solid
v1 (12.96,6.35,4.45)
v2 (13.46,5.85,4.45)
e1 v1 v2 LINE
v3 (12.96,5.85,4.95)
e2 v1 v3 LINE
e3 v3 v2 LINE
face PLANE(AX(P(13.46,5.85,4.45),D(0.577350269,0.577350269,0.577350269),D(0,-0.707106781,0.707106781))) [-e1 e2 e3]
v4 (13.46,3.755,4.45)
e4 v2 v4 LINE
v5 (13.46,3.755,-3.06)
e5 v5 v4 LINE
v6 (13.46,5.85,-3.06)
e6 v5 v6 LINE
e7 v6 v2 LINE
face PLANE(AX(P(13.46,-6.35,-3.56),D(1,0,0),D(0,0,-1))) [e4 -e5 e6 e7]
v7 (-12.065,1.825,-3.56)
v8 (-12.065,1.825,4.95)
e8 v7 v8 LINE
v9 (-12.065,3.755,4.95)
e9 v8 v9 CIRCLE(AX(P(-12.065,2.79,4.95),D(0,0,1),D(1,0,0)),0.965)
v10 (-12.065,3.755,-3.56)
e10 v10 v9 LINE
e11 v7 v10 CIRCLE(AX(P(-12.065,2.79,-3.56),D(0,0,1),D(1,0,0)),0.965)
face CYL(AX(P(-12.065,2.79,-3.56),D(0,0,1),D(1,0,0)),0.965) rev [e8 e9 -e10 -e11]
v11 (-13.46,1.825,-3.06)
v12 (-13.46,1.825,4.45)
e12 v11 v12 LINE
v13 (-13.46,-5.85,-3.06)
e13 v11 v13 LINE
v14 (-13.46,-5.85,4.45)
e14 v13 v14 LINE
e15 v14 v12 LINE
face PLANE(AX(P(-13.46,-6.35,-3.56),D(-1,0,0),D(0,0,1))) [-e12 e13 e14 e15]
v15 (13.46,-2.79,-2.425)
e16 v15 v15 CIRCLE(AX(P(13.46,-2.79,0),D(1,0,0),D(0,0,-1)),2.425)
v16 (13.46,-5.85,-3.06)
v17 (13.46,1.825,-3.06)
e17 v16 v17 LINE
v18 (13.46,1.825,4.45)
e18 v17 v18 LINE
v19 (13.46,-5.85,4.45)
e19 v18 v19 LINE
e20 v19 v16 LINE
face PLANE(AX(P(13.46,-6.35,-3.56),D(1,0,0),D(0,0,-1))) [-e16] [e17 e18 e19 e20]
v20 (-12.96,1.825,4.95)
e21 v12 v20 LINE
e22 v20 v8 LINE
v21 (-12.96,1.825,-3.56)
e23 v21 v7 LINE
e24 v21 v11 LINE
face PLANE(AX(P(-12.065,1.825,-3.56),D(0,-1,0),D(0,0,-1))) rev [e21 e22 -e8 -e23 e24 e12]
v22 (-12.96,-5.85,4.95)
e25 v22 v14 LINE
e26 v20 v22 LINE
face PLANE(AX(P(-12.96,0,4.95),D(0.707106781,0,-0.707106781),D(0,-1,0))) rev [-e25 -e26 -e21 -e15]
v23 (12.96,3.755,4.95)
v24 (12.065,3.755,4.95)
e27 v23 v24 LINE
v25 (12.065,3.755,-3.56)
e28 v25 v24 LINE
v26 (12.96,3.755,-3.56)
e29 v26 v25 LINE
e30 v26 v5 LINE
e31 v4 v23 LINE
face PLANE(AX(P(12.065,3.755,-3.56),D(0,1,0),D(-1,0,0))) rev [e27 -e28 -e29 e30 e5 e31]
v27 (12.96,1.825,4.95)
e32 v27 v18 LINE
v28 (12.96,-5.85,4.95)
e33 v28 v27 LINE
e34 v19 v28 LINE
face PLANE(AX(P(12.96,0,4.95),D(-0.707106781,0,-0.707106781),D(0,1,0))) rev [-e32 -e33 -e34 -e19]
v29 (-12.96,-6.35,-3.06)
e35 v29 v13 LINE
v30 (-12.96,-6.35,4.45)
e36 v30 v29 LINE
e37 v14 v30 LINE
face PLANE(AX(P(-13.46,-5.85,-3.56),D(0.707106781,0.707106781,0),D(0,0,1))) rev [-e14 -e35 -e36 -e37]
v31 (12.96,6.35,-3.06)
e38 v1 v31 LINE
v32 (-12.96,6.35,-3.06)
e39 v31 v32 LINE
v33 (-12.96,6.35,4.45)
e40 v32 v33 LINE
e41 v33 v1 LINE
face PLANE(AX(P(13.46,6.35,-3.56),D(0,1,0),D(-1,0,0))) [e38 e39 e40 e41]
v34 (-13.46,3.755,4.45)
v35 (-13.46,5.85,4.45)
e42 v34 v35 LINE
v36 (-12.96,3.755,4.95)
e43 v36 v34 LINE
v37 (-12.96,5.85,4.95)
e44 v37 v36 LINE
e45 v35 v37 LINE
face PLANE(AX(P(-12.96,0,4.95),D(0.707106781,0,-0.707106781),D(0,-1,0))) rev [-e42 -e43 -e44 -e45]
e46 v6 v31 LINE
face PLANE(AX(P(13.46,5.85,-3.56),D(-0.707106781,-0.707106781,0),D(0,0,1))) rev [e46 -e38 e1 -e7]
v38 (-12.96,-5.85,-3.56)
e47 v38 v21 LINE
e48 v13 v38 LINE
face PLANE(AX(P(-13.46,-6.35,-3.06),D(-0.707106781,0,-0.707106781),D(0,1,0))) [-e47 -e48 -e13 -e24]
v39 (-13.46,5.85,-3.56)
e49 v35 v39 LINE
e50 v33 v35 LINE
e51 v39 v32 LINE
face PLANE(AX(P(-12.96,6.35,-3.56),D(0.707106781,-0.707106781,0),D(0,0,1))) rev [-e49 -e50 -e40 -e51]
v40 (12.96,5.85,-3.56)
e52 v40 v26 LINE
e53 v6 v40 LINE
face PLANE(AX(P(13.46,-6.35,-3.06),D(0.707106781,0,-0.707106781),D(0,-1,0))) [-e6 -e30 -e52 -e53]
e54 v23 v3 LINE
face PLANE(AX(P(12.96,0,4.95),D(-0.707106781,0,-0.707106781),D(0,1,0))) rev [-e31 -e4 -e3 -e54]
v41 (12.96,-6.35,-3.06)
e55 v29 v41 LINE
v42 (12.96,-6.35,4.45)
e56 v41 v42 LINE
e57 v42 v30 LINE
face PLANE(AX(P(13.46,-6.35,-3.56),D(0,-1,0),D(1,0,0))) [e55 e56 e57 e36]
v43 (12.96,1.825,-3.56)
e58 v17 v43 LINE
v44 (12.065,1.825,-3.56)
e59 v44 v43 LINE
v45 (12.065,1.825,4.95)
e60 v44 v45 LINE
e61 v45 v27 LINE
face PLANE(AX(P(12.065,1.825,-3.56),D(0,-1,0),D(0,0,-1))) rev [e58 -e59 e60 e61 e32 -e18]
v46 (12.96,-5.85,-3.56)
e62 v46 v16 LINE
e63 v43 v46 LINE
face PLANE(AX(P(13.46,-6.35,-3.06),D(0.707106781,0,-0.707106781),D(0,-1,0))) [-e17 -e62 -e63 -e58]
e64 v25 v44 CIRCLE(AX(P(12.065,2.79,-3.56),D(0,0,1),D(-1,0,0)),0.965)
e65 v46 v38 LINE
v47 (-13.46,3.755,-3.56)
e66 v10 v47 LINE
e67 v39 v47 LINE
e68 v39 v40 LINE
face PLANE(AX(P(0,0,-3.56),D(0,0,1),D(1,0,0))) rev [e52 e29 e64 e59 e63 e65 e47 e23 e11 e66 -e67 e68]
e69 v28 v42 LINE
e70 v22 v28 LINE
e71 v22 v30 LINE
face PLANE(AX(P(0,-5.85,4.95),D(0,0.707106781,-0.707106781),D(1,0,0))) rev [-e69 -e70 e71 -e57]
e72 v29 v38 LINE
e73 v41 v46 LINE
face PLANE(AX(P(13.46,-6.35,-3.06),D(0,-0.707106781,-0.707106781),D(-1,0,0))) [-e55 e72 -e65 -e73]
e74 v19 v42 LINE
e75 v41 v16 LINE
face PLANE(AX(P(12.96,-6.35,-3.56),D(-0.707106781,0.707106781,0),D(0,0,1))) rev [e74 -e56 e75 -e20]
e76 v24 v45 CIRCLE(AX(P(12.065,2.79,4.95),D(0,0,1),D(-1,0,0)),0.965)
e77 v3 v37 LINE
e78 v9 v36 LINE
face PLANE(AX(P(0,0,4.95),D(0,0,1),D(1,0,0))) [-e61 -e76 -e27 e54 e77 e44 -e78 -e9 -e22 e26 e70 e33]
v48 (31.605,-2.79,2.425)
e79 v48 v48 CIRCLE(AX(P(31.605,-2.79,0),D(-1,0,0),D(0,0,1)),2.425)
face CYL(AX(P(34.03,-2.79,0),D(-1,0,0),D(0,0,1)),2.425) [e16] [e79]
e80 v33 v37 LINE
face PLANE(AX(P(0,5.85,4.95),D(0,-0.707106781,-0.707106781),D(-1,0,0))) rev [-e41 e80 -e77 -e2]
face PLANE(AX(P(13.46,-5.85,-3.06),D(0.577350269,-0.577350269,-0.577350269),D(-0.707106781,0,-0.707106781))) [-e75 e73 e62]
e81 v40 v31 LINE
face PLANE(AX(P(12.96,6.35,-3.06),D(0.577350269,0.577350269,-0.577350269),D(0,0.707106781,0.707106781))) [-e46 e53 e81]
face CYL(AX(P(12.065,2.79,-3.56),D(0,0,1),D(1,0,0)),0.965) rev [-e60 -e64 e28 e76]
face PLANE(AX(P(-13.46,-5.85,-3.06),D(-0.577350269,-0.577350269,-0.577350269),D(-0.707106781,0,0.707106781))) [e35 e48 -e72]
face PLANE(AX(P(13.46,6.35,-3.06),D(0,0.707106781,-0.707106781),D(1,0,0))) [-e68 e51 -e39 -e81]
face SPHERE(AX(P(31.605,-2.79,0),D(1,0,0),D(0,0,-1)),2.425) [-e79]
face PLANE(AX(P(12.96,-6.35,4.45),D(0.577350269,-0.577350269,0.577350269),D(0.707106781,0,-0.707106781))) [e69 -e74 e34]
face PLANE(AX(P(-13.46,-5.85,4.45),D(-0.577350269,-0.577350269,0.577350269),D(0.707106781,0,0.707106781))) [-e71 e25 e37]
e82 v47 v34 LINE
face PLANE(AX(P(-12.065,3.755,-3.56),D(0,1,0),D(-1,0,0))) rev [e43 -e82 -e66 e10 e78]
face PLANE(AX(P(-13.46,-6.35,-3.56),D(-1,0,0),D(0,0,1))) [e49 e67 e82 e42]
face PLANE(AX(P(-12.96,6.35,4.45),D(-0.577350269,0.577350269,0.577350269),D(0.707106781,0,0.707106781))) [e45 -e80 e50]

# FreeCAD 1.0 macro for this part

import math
import FreeCAD as App
import Part
import Sketcher
from FreeCAD import Vector
Q = App.Units.Quantity


def edges_at(feature, points):
    """Names of the edges that pass closest to the given points."""
    edges = feature.Shape.Edges
    near = lambda p: min(range(len(edges)), key=lambda i: edges[i].distToShape(Part.Vertex(*p))[0])
    return sorted({f"Edge{near(p) + 1}" for p in points})

doc = App.newDocument("Part")
body = doc.addObject("PartDesign::Body", "Body")

sketch1 = body.newObject("Sketcher::SketchObject", "Sketch")
sketch1.AttachmentSupport = (doc.getObject("XY_Plane"), [""])
sketch1.MapMode = "FlatFace"
sketch1.addGeometry([
    Part.LineSegment(Vector(-13, 6, 0), Vector(-13, -6, 0)),
    Part.LineSegment(Vector(-13, -6, 0), Vector(13, -6, 0)),
    Part.LineSegment(Vector(13, -6, 0), Vector(13, 6, 0)),
    Part.LineSegment(Vector(13, 6, 0), Vector(-13, 6, 0)),
], False)
sketch1.addConstraint([
    Sketcher.Constraint("Coincident", 0, 2, 1, 1),
    Sketcher.Constraint("Coincident", 1, 2, 2, 1),
    Sketcher.Constraint("Coincident", 2, 2, 3, 1),
    Sketcher.Constraint("Coincident", 3, 2, 0, 1),
    Sketcher.Constraint("Vertical", 0),
    Sketcher.Constraint("Horizontal", 1),
    Sketcher.Constraint("Vertical", 2),
    Sketcher.Constraint("Horizontal", 3),
    Sketcher.Constraint("Symmetric", 0, 2, 2, 2, -1, 1),
    Sketcher.Constraint("DistanceY", 0, 2, 0, 1, Q("12.7 mm")),
    Sketcher.Constraint("DistanceX", 1, 1, 1, 2, Q("26.92 mm")),
])
pad1 = body.newObject("PartDesign::Pad", "Pad")
pad1.Profile = sketch1
pad1.Type = "TwoLengths"
pad1.Length = 4.95
pad1.Length2 = 3.56

sketch2 = body.newObject("Sketcher::SketchObject", "Sketch001")
sketch2.AttachmentSupport = (doc.getObject("XY_Plane"), [""])
sketch2.MapMode = "FlatFace"
sketch2.AttachmentOffset = App.Placement(Vector(0, 0, 4.95), App.Rotation())
sketch2.addGeometry([
    Part.LineSegment(Vector(-13.5, 1.8, 0), Vector(-12.1, 1.8, 0)),
    Part.ArcOfCircle(Part.Circle(Vector(-12.1, 2.8, 0), Vector(0, 0, 1), 1), math.radians(-90), math.radians(90)),
    Part.LineSegment(Vector(-12.1, 3.8, 0), Vector(-13.5, 3.8, 0)),
    Part.ArcOfCircle(Part.Circle(Vector(-13.5, 2.8, 0), Vector(0, 0, 1), 1), math.radians(90), math.radians(270)),
    Part.LineSegment(Vector(12.1, 1.8, 0), Vector(13.5, 1.8, 0)),
    Part.ArcOfCircle(Part.Circle(Vector(13.5, 2.8, 0), Vector(0, 0, 1), 1), math.radians(-90), math.radians(90)),
    Part.LineSegment(Vector(13.5, 3.8, 0), Vector(12.1, 3.8, 0)),
    Part.ArcOfCircle(Part.Circle(Vector(12.1, 2.8, 0), Vector(0, 0, 1), 1), math.radians(90), math.radians(270)),
], False)
sketch2.addConstraint([
    Sketcher.Constraint("Tangent", 0, 2, 1, 1),
    Sketcher.Constraint("Tangent", 1, 2, 2, 1),
    Sketcher.Constraint("Tangent", 2, 2, 3, 1),
    Sketcher.Constraint("Tangent", 3, 2, 0, 1),
    Sketcher.Constraint("Tangent", 4, 2, 5, 1),
    Sketcher.Constraint("Tangent", 5, 2, 6, 1),
    Sketcher.Constraint("Tangent", 6, 2, 7, 1),
    Sketcher.Constraint("Tangent", 7, 2, 4, 1),
    Sketcher.Constraint("Horizontal", 0),
    Sketcher.Constraint("Horizontal", 2),
    Sketcher.Constraint("Horizontal", 4),
    Sketcher.Constraint("Horizontal", 6),
    Sketcher.Constraint("Equal", 3, 5),
    Sketcher.Constraint("Symmetric", 3, 3, 5, 3, -2),
    Sketcher.Constraint("Equal", 2, 4),
    Sketcher.Constraint("Radius", 1, Q("0.965 mm")),
    Sketcher.Constraint("DistanceX", 0, 1, 0, 2, Q("1.395 mm")),
    Sketcher.Constraint("DistanceY", -1, 1, 1, 3, Q("2.79 mm")),
    Sketcher.Constraint("DistanceX", 3, 3, -1, 1, Q("13.46 mm")),
])
pocket1 = body.newObject("PartDesign::Pocket", "Pocket")
pocket1.Profile = sketch2
pocket1.Type = "ThroughAll"

sketch3 = body.newObject("Sketcher::SketchObject", "Sketch002")
sketch3.AttachmentSupport = (doc.getObject("YZ_Plane"), [""])
sketch3.MapMode = "FlatFace"
sketch3.AttachmentOffset = App.Placement(Vector(0, 0, 13.46), App.Rotation())
sketch3.addGeometry(Part.Circle(Vector(-2.8, 0, 0), Vector(0, 0, 1), 2.4), False)
sketch3.addConstraint([
    Sketcher.Constraint("PointOnObject", 0, 3, -1),
    Sketcher.Constraint("Diameter", 0, Q("4.85 mm")),
    Sketcher.Constraint("DistanceX", 0, 3, -1, 1, Q("2.79 mm")),
])
pad2 = body.newObject("PartDesign::Pad", "Pad001")
pad2.Profile = sketch3
pad2.Length = 20.57
doc.recompute()

fillet = body.newObject("PartDesign::Fillet", "Fillet")
fillet.Base = (pad2, edges_at(pad2, [(34.03, -2.79, 2.425)]))
fillet.Radius = 2.425
doc.recompute()

chamfer = body.newObject("PartDesign::Chamfer", "Chamfer")
chamfer.Base = (fillet, edges_at(fillet, [
    (13.46, 6.35, 0.695),
    (13.46, 5.053, -3.56),
    (0, 6.35, -3.56),
    (-13.46, 6.35, 0.695),
    (13.46, 5.053, 4.95),
    (0, 6.35, 4.95),
    (-13.46, 5.053, 4.95),
    (13.46, -6.35, 0.695),
    (-13.46, -2.263, -3.56),
    (13.46, -2.263, -3.56),
    (0, -6.35, -3.56),
    (-13.46, -6.35, 0.695),
    (13.46, -2.263, 4.95),
    (0, -6.35, 4.95),
    (-13.46, -2.263, 4.95),
]))
chamfer.Size = 0.5

doc.recompute()
